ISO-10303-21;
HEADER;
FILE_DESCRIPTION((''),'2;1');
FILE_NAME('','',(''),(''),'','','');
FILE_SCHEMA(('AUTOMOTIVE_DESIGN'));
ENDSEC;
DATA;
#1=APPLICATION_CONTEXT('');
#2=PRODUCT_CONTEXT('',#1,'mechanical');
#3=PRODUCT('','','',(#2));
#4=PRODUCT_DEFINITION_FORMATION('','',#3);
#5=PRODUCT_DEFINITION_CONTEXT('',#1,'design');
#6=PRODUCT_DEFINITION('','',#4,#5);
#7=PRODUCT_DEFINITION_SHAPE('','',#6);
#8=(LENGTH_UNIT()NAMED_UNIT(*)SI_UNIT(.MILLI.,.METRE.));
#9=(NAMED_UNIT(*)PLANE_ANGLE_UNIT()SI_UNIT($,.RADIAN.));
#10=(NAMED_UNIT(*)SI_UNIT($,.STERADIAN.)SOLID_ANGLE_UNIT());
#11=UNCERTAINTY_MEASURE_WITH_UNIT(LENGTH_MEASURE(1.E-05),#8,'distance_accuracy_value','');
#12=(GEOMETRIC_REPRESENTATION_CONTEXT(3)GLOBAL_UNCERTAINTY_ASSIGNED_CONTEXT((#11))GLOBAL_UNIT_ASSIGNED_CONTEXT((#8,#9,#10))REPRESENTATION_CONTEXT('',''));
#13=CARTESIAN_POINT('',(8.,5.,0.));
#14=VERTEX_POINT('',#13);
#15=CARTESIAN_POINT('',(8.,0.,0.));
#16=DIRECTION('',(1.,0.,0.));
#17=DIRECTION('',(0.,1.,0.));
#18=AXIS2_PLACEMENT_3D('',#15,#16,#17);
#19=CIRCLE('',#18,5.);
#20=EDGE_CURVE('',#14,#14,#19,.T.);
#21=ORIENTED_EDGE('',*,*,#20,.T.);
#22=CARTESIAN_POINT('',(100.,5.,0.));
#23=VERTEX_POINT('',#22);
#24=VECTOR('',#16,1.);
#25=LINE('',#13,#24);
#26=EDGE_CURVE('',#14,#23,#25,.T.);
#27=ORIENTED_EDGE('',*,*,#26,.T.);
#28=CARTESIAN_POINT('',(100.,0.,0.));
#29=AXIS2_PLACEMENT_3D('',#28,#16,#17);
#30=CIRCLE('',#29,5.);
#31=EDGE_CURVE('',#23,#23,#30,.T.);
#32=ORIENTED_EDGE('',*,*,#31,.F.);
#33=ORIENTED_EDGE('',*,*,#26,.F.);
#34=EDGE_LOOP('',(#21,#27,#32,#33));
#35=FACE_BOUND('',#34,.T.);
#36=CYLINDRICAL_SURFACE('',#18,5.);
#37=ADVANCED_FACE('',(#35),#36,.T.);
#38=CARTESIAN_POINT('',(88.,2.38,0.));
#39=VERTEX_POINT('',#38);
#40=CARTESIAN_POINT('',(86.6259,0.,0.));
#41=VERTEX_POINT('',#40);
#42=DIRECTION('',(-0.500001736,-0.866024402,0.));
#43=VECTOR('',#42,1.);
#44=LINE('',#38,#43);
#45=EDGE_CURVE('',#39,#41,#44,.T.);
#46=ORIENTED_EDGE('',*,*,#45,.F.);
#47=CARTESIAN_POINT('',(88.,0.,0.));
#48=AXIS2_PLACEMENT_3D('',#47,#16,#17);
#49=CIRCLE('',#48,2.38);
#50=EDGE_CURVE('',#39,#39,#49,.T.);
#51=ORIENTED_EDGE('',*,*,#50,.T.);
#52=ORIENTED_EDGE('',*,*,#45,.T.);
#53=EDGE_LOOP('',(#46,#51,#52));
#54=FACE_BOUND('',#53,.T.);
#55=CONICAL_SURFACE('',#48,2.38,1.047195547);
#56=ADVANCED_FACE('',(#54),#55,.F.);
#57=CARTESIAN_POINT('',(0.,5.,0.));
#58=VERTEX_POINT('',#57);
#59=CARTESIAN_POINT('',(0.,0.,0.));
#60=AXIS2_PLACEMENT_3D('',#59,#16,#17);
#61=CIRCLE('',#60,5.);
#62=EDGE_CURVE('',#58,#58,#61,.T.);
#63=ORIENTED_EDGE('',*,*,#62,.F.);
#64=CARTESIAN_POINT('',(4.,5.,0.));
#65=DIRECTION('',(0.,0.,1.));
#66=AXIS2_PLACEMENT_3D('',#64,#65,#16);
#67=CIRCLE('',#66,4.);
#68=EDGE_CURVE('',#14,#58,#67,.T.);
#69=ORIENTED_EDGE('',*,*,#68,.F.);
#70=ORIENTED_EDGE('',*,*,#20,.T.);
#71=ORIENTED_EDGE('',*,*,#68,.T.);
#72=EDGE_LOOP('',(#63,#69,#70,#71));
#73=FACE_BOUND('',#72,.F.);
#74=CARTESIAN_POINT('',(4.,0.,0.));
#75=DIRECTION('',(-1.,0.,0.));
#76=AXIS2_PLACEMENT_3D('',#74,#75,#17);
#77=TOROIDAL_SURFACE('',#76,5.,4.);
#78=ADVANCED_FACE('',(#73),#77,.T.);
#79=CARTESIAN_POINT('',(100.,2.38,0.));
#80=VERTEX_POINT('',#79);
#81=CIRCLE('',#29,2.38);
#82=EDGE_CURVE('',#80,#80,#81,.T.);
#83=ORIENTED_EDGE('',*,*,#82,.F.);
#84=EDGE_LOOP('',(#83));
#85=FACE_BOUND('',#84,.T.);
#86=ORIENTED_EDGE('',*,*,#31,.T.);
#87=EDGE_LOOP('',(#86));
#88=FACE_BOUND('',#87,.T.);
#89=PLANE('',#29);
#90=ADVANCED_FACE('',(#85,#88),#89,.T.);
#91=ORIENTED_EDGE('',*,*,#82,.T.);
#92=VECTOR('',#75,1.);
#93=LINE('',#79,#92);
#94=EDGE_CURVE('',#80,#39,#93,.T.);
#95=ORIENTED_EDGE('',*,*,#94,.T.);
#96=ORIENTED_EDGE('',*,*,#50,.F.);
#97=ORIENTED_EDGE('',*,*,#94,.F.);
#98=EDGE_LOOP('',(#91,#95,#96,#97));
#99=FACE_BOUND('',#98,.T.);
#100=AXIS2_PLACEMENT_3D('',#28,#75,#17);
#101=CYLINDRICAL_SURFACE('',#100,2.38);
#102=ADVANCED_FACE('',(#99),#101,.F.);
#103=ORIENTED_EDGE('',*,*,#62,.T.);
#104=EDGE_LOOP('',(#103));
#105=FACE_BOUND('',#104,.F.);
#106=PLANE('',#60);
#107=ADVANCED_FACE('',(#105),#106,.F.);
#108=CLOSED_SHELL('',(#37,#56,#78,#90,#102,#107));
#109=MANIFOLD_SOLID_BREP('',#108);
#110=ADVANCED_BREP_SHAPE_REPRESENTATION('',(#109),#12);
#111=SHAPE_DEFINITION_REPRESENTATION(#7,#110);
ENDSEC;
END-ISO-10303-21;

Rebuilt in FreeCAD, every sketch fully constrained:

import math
import FreeCAD as App
import Part
import Sketcher

V = App.Vector
Q = App.Units.Quantity

doc = App.newDocument("Part")
body = doc.addObject("PartDesign::Body", "Body")

# Sketch on XY plane
sketch1 = doc.addObject("Sketcher::SketchObject", "Sketch")
body.addObject(sketch1)
sketch1.AttachmentSupport = (doc.XY_Plane, [""])
sketch1.MapMode = "FlatFace"
sketch1.addGeometry([
    Part.LineSegment(V(0, 5, 0), V(0, 0, 0)),  # 0
    Part.LineSegment(V(0, 0, 0), V(86.6259, 0, 0)),  # 1
    Part.LineSegment(V(86.6259, 0, 0), V(88, 2.38, 0)),  # 2
    Part.LineSegment(V(88, 2.38, 0), V(100, 2.38, 0)),  # 3
    Part.LineSegment(V(100, 2.38, 0), V(100, 5, 0)),  # 4
    Part.LineSegment(V(100, 5, 0), V(8, 5, 0)),  # 5
    Part.ArcOfCircle(Part.Circle(V(4, 5, 0), V(0, 0, 1), 4), math.radians(0), math.radians(180)),  # 6
], False)
sketch1.addConstraint([
    Sketcher.Constraint("Coincident", 0, 2, 1, 1),
    Sketcher.Constraint("Coincident", 1, 2, 2, 1),
    Sketcher.Constraint("Coincident", 2, 2, 3, 1),
    Sketcher.Constraint("Coincident", 3, 2, 4, 1),
    Sketcher.Constraint("Coincident", 4, 2, 5, 1),
    Sketcher.Constraint("Coincident", 5, 2, 6, 1),
    Sketcher.Constraint("Tangent", 6, 2, 0, 1),
    Sketcher.Constraint("Vertical", 0),
    Sketcher.Constraint("Horizontal", 1),
    Sketcher.Constraint("Horizontal", 3),
    Sketcher.Constraint("Vertical", 4),
    Sketcher.Constraint("Horizontal", 5),
    Sketcher.Constraint("Coincident", 0, 2, -1, 1),
    Sketcher.Constraint("Horizontal", 6, 3, 4, 2),
    Sketcher.Constraint("Radius", 6, Q("4 mm")),
    Sketcher.Constraint("DistanceX", 3, 1, 3, 2, Q("12 mm")),
    Sketcher.Constraint("DistanceX", 5, 2, 5, 1, Q("92 mm")),
    Sketcher.Constraint("DistanceY", 0, 2, 0, 1, Q("5 mm")),
    Sketcher.Constraint("DistanceY", -1, 1, 2, 2, Q("2.38 mm")),
    Sketcher.Constraint("Angle", 2, Q("60 deg")),
])
revolution = doc.addObject("PartDesign::Revolution", "Revolution")
body.addObject(revolution)
revolution.Profile = sketch1
revolution.ReferenceAxis = (sketch1, ["H_Axis"])
revolution.Angle = 360

doc.recompute()
